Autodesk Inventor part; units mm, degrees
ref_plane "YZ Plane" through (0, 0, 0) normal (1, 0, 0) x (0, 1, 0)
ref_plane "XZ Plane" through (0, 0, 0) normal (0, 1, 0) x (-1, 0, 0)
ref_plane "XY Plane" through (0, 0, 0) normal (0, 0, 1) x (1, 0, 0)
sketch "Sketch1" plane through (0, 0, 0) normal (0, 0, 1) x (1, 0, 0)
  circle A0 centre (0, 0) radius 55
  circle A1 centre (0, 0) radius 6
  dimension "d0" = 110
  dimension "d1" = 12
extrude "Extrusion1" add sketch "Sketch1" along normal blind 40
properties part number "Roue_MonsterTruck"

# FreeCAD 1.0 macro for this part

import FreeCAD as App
import Part
import Sketcher

doc = App.newDocument("Part")
body = doc.addObject("PartDesign::Body", "Body")

sketch1 = body.newObject("Sketcher::SketchObject", "Sketch")
sketch1.AttachmentSupport = (doc.getObject("XY_Plane"), [""])
sketch1.MapMode = "FlatFace"
sketch1.addGeometry(Part.Circle(App.Vector(0, 0, 0), App.Vector(0, 0, 1), 55), False)
sketch1.addGeometry(Part.Circle(App.Vector(0, 0, 0), App.Vector(0, 0, 1), 6), False)
sketch1.addConstraint(Sketcher.Constraint("Coincident", 0, 3, -1, 1))
sketch1.addConstraint(Sketcher.Constraint("Coincident", 1, 3, -1, 1))
sketch1.addConstraint(Sketcher.Constraint("Diameter", 0, 110.0))
sketch1.addConstraint(Sketcher.Constraint("Diameter", 1, 12.0))
pad1 = body.newObject("PartDesign::Pad", "Pad")
pad1.Profile = sketch1
pad1.Length = 40

doc.recompute()
